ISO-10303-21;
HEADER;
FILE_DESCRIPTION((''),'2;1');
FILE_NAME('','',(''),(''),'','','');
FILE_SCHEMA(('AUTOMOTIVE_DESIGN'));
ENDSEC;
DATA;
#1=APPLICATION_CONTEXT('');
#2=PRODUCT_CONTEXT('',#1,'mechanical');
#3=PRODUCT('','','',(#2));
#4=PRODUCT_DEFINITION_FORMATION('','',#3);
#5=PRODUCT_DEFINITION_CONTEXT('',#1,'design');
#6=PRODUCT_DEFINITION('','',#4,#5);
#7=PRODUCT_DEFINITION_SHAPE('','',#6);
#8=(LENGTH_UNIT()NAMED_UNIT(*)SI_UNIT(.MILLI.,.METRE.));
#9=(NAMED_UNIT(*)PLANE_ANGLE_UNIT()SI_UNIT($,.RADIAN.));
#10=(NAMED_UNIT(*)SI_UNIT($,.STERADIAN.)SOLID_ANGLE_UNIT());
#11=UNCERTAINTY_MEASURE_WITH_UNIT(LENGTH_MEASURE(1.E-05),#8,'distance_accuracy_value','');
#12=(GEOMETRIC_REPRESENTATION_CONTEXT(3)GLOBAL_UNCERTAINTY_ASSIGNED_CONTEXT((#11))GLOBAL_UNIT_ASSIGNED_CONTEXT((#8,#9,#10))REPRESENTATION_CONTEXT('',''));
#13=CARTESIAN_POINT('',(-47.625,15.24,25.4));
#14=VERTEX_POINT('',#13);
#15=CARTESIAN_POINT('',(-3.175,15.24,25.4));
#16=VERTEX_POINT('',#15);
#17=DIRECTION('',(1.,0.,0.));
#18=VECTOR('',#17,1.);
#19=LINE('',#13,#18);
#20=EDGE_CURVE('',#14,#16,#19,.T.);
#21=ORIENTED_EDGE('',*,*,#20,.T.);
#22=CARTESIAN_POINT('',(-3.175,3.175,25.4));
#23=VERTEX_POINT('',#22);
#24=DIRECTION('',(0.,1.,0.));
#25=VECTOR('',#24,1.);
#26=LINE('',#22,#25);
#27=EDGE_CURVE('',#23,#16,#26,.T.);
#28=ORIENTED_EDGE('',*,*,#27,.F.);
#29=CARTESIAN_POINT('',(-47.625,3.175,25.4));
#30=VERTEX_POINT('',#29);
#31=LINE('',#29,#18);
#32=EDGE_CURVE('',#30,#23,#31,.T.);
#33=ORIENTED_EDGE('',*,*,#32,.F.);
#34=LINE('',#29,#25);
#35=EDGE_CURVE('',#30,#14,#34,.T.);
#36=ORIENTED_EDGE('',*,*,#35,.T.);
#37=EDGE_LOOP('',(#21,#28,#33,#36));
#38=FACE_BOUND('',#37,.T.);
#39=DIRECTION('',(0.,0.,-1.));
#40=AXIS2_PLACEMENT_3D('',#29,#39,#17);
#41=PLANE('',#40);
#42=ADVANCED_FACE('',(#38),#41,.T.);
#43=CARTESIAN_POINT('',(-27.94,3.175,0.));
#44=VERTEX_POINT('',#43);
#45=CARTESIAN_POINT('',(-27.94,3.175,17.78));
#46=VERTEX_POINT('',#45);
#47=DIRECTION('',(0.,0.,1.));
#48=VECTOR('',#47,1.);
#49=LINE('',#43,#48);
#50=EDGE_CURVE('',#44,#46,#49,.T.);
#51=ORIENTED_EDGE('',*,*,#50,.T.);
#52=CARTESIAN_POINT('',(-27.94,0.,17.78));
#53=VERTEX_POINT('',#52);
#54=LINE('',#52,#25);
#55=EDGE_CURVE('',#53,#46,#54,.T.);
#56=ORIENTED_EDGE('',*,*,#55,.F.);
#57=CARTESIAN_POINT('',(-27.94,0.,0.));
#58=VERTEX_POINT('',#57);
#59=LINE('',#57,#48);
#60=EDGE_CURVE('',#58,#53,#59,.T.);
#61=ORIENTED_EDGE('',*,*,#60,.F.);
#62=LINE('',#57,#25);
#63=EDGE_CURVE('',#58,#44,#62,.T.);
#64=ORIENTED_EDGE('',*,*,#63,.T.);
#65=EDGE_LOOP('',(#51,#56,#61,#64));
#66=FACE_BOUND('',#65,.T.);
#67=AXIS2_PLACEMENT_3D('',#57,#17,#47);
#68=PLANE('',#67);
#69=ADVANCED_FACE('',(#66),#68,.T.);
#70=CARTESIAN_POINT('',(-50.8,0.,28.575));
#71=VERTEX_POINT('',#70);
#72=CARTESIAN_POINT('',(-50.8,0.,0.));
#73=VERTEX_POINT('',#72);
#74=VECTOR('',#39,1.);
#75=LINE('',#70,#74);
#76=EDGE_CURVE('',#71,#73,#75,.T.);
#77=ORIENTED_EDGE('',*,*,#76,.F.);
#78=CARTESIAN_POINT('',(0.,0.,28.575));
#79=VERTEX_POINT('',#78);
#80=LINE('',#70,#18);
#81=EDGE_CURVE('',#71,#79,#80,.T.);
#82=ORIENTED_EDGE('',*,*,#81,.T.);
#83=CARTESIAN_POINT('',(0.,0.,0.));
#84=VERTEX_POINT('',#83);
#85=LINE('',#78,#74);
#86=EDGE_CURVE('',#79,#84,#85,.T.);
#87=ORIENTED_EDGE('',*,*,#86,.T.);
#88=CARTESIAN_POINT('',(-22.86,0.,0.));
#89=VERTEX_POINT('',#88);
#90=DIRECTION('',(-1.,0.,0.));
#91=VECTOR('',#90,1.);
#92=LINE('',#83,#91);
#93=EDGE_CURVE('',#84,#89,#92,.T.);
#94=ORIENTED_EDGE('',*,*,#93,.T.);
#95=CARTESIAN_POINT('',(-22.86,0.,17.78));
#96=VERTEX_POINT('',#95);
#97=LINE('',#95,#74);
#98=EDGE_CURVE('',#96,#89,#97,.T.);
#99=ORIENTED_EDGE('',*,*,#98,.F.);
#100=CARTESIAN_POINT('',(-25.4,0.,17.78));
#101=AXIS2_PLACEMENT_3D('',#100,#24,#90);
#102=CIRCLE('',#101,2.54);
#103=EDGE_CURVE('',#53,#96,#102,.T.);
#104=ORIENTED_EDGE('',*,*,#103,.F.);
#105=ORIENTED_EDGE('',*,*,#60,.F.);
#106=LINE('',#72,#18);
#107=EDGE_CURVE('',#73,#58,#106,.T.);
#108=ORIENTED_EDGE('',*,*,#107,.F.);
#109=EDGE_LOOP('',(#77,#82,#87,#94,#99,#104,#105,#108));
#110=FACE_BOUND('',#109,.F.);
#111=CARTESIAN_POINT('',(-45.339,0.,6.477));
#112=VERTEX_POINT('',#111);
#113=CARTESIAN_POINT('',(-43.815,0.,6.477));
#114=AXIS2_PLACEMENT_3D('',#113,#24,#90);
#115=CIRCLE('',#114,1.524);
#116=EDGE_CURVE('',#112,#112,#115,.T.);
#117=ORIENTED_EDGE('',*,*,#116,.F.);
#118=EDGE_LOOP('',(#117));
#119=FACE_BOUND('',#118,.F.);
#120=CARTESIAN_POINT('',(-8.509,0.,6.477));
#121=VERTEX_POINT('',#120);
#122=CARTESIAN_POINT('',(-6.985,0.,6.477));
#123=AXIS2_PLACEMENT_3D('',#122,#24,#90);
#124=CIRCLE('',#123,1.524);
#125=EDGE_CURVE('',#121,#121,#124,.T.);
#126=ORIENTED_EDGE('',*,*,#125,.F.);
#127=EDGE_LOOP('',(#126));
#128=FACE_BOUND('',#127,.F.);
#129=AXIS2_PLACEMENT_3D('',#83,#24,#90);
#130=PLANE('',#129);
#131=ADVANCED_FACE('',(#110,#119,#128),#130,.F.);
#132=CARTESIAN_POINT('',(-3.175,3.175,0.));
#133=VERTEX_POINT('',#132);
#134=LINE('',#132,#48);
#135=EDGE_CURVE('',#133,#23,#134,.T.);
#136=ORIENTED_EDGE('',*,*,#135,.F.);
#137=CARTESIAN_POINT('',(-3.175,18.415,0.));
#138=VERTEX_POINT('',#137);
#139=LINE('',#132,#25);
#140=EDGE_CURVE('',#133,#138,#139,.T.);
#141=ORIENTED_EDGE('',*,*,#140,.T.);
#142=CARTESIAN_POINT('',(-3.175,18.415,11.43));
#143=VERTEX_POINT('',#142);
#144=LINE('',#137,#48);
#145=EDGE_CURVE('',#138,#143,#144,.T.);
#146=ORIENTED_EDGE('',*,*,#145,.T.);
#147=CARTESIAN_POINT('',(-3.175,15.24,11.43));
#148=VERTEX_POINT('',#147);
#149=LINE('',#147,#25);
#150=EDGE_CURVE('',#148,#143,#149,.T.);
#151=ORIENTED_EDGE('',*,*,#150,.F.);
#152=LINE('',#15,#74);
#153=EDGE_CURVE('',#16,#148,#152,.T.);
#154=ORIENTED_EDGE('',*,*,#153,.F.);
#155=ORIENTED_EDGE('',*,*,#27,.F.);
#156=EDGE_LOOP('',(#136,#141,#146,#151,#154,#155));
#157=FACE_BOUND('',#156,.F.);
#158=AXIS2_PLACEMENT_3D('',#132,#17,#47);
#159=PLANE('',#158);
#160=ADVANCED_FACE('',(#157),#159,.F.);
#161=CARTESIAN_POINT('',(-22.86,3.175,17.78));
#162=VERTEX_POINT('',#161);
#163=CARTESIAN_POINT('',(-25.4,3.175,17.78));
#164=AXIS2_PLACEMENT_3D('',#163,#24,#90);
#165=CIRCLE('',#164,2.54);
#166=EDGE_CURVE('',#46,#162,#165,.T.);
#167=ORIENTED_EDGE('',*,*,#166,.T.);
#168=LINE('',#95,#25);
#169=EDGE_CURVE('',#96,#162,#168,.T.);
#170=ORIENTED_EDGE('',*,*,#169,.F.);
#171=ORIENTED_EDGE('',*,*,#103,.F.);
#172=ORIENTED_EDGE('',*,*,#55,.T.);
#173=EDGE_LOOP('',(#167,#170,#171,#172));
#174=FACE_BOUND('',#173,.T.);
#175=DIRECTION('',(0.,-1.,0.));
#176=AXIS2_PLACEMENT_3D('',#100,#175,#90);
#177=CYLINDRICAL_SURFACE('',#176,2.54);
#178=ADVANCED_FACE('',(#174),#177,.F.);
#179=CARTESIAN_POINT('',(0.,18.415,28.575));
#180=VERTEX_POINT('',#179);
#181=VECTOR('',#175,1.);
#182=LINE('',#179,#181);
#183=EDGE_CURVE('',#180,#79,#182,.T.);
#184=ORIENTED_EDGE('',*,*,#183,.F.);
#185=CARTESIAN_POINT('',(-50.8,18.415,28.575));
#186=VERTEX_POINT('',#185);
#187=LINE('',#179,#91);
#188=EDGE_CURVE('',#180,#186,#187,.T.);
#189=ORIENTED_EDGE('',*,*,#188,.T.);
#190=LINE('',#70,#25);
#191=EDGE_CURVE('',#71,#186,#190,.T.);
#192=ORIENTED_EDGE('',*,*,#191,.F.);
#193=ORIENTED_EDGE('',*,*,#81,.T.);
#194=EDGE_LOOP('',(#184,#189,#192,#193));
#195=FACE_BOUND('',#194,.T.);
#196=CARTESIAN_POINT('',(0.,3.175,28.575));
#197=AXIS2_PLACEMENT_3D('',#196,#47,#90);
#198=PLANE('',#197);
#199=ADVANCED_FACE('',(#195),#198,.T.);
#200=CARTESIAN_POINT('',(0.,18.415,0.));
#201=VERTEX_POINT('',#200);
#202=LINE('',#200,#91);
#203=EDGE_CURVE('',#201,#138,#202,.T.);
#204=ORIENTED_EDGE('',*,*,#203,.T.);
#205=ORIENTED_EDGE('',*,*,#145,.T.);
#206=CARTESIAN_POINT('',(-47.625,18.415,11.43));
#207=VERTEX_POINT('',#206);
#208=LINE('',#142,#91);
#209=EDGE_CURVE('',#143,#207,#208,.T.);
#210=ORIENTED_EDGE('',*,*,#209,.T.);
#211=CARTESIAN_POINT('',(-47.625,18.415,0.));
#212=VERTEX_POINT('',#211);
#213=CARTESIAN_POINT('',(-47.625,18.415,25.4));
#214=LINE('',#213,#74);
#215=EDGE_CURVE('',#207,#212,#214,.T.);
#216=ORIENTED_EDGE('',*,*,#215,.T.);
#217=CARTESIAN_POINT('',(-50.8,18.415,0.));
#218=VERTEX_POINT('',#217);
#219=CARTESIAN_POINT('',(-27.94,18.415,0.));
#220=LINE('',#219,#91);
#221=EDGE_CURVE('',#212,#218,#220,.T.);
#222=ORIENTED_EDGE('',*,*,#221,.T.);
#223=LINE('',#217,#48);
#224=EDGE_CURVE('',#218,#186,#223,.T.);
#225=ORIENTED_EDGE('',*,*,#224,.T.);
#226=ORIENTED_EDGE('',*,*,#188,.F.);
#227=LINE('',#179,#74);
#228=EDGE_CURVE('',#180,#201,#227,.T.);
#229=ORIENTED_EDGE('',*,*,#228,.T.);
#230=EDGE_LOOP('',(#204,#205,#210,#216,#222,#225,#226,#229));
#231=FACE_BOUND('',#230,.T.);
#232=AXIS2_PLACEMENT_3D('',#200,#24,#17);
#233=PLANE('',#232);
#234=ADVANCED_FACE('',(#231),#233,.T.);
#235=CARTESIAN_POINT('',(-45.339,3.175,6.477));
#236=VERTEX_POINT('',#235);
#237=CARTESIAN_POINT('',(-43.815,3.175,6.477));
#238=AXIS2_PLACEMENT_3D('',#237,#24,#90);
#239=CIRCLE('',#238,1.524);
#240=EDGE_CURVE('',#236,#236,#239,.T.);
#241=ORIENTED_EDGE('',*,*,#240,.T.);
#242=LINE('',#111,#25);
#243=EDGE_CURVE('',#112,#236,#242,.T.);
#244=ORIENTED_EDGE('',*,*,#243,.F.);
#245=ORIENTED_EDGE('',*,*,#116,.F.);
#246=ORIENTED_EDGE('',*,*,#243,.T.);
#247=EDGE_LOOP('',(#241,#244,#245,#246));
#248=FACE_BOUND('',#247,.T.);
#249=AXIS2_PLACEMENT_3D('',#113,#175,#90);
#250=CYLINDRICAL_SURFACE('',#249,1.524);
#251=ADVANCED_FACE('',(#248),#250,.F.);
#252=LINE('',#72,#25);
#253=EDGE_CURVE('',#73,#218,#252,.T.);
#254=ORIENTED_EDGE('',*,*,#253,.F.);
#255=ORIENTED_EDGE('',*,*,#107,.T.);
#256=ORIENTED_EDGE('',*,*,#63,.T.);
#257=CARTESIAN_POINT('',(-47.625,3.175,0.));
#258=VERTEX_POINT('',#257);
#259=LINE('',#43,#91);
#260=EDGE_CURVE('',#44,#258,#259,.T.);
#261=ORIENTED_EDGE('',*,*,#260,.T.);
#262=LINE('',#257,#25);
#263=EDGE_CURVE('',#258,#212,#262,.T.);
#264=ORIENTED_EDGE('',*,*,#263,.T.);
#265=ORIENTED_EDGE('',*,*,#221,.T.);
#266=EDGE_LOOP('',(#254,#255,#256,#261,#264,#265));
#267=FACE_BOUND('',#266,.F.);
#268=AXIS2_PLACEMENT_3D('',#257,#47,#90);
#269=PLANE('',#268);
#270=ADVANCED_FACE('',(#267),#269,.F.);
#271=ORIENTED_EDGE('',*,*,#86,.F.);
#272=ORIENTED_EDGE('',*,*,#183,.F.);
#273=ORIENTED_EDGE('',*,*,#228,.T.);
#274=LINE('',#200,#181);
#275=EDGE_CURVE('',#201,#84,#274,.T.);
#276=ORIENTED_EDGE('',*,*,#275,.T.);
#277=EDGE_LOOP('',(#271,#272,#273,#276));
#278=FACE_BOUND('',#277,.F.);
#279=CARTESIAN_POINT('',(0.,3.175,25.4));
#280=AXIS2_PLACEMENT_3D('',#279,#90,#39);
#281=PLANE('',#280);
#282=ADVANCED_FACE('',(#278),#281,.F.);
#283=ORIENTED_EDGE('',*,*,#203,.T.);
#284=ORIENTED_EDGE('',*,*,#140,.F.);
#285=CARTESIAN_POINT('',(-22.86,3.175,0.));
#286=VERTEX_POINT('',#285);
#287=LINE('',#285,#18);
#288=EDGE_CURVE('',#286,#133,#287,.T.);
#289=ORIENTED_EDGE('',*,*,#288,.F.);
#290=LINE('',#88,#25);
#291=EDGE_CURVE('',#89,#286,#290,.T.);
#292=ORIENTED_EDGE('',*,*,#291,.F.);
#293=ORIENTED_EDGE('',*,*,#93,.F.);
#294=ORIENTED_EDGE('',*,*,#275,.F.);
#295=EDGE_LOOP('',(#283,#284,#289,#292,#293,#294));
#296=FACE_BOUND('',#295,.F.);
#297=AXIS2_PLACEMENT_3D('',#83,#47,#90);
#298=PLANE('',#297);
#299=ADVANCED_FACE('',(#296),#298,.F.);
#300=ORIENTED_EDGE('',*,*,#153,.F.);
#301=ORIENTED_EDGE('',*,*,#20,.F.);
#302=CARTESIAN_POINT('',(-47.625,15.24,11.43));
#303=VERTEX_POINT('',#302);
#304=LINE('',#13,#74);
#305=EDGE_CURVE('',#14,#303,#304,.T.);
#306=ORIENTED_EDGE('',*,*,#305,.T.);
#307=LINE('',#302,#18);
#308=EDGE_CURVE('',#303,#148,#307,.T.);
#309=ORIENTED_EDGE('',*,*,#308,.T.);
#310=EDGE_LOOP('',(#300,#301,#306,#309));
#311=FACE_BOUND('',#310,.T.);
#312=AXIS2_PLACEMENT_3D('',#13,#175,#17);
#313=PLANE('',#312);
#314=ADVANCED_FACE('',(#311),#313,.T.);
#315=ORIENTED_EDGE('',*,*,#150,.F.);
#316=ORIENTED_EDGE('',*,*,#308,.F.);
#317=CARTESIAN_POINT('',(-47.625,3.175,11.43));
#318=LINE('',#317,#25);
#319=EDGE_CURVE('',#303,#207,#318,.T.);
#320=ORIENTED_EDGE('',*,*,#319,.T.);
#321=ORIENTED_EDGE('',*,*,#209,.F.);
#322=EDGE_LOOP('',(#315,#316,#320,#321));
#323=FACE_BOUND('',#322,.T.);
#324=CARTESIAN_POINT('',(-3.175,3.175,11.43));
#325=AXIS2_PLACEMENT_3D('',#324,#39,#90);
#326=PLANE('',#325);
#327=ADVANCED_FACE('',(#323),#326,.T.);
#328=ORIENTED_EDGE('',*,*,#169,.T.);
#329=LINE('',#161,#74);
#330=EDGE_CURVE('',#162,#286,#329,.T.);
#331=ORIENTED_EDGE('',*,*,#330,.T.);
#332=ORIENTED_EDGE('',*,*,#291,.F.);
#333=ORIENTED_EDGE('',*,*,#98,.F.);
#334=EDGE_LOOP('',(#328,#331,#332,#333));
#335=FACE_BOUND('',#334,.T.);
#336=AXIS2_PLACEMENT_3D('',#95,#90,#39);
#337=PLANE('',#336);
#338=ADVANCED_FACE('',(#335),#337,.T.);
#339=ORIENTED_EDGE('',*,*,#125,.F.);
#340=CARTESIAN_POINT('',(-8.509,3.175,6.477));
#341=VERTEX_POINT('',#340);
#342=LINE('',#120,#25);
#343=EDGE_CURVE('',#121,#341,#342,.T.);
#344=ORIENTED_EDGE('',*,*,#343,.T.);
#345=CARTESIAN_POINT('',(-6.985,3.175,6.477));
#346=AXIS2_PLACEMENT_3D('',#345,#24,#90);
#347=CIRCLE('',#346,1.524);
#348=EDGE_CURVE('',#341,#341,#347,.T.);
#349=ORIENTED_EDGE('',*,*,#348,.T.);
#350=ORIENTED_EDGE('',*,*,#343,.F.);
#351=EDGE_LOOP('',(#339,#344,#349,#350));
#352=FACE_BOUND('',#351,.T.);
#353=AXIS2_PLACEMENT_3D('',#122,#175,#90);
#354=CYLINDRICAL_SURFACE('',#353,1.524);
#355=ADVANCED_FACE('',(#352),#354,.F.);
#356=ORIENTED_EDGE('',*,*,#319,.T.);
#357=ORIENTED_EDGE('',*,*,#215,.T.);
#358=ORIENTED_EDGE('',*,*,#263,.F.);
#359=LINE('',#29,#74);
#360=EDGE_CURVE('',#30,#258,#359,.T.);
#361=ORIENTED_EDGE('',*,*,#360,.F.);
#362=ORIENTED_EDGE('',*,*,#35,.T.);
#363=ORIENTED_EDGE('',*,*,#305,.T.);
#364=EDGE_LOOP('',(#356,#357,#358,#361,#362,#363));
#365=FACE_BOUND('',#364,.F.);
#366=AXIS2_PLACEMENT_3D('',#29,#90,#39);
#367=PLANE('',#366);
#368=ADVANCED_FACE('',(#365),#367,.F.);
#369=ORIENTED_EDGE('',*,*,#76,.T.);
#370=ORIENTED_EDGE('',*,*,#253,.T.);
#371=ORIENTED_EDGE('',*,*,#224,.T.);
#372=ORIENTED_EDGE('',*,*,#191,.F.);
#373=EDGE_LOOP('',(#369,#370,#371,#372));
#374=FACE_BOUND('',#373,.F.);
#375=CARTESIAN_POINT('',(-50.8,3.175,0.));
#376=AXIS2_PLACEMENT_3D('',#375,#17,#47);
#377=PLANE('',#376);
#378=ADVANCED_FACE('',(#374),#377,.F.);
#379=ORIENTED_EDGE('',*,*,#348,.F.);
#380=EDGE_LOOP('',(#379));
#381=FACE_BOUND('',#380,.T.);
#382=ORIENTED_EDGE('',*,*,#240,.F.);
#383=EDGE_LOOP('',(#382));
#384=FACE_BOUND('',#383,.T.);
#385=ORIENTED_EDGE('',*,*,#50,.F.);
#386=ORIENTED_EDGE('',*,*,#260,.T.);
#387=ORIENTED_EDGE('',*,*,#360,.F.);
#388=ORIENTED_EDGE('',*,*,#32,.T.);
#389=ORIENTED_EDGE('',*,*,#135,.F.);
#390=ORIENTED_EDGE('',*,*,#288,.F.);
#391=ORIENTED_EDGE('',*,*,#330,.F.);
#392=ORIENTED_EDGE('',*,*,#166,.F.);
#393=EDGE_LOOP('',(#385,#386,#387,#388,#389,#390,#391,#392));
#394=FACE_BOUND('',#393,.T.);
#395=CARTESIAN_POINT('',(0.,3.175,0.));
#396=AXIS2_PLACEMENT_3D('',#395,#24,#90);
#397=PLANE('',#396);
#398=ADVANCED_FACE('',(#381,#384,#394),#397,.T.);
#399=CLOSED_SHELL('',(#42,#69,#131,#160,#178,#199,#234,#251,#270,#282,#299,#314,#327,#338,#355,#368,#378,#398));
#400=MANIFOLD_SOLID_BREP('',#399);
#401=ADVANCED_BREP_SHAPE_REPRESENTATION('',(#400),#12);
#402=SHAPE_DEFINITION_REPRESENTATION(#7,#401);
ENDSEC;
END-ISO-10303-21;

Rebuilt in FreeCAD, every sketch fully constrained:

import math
import FreeCAD as App
import Part
import Sketcher
Q = App.Units.Quantity

doc = App.newDocument("Part")
body = doc.addObject("PartDesign::Body", "Body")

sketch1 = body.newObject("Sketcher::SketchObject", "Sketch")
sketch1.AttachmentSupport = (doc.getObject("XZ_Plane"), [""])
sketch1.MapMode = "FlatFace"
sketch1.addGeometry([
    Part.LineSegment(App.Vector(0, 0, 0), App.Vector(-22.9, 0, 0)),
    Part.LineSegment(App.Vector(-22.9, 0, 0), App.Vector(-22.9, 17.8, 0)),
    Part.ArcOfCircle(Part.Circle(App.Vector(-25.4, 17.8, 0), App.Vector(0, 0, 1), 2.5), math.radians(0), math.radians(180)),
    Part.LineSegment(App.Vector(-27.9, 17.8, 0), App.Vector(-27.9, 0, 0)),
    Part.LineSegment(App.Vector(-27.9, 0, 0), App.Vector(-50.8, 0, 0)),
    Part.LineSegment(App.Vector(-50.8, 0, 0), App.Vector(-50.8, 28.6, 0)),
    Part.LineSegment(App.Vector(-50.8, 28.6, 0), App.Vector(0, 28.6, 0)),
    Part.LineSegment(App.Vector(0, 28.6, 0), App.Vector(0, 0, 0)),
    Part.Circle(App.Vector(-7, 6.5, 0), App.Vector(0, 0, 1), 1.5),
    Part.Circle(App.Vector(-43.8, 6.5, 0), App.Vector(0, 0, 1), 1.5),
], False)
sketch1.addConstraint([
    Sketcher.Constraint("Coincident", 0, 2, 1, 1),
    Sketcher.Constraint("Tangent", 1, 2, 2, 1),
    Sketcher.Constraint("Tangent", 2, 2, 3, 1),
    Sketcher.Constraint("Coincident", 3, 2, 4, 1),
    Sketcher.Constraint("Coincident", 4, 2, 5, 1),
    Sketcher.Constraint("Coincident", 5, 2, 6, 1),
    Sketcher.Constraint("Coincident", 6, 2, 7, 1),
    Sketcher.Constraint("Coincident", 7, 2, 0, 1),
    Sketcher.Constraint("Horizontal", 0),
    Sketcher.Constraint("Vertical", 1),
    Sketcher.Constraint("Vertical", 3),
    Sketcher.Constraint("Horizontal", 4),
    Sketcher.Constraint("Vertical", 5),
    Sketcher.Constraint("Horizontal", 6),
    Sketcher.Constraint("Vertical", 7),
    Sketcher.Constraint("Coincident", 7, 2, -1, 1),
    Sketcher.Constraint("Equal", 8, 9),
    Sketcher.Constraint("PointOnObject", 3, 2, -1),
    Sketcher.Constraint("Horizontal", 8, 3, 9, 3),
    Sketcher.Constraint("Equal", 0, 4),
    Sketcher.Constraint("Radius", 2, Q("0.1 in")),
    Sketcher.Constraint("Diameter", 8, Q("0.12 in")),
    Sketcher.Constraint("DistanceX", 6, 1, 6, 2, Q("2 in")),
    Sketcher.Constraint("DistanceY", 5, 1, 5, 2, Q("1.125 in")),
    Sketcher.Constraint("DistanceY", 1, 1, 1, 2, Q("0.7 in")),
    Sketcher.Constraint("DistanceX", 9, 3, 8, 3, Q("1.45 in")),
    Sketcher.Constraint("DistanceY", 9, 3, 5, 2, Q("0.87 in")),
    Sketcher.Constraint("DistanceX", 8, 3, -1, 1, Q("0.275 in")),
])
pad1 = body.newObject("PartDesign::Pad", "Pad")
pad1.Profile = sketch1
pad1.Length = Q("0.125 in")
pad1.Reversed = True

sketch2 = body.newObject("Sketcher::SketchObject", "Sketch001")
sketch2.AttachmentSupport = (doc.getObject("XZ_Plane"), [""])
sketch2.MapMode = "FlatFace"
sketch2.AttachmentOffset = App.Placement(App.Vector(0, 0, -0.125 * 25.4), App.Rotation())
sketch2.addGeometry([
    Part.LineSegment(App.Vector(-47.6, 25.4, 0), App.Vector(-47.6, 0, 0)),
    Part.LineSegment(App.Vector(-47.6, 0, 0), App.Vector(-50.8, 0, 0)),
    Part.LineSegment(App.Vector(-50.8, 0, 0), App.Vector(-50.8, 28.6, 0)),
    Part.LineSegment(App.Vector(-50.8, 28.6, 0), App.Vector(0, 28.6, 0)),
    Part.LineSegment(App.Vector(0, 28.6, 0), App.Vector(0, 0, 0)),
    Part.LineSegment(App.Vector(0, 0, 0), App.Vector(-3.2, 0, 0)),
    Part.LineSegment(App.Vector(-3.2, 0, 0), App.Vector(-3.2, 25.4, 0)),
    Part.LineSegment(App.Vector(-3.2, 25.4, 0), App.Vector(-47.6, 25.4, 0)),
], False)
sketch2.addConstraint([
    Sketcher.Constraint("Coincident", 0, 2, 1, 1),
    Sketcher.Constraint("Coincident", 1, 2, 2, 1),
    Sketcher.Constraint("Coincident", 2, 2, 3, 1),
    Sketcher.Constraint("Coincident", 3, 2, 4, 1),
    Sketcher.Constraint("Coincident", 4, 2, 5, 1),
    Sketcher.Constraint("Coincident", 5, 2, 6, 1),
    Sketcher.Constraint("Coincident", 6, 2, 7, 1),
    Sketcher.Constraint("Coincident", 7, 2, 0, 1),
    Sketcher.Constraint("Vertical", 0),
    Sketcher.Constraint("Horizontal", 1),
    Sketcher.Constraint("Vertical", 2),
    Sketcher.Constraint("Horizontal", 3),
    Sketcher.Constraint("Vertical", 4),
    Sketcher.Constraint("Horizontal", 5),
    Sketcher.Constraint("Vertical", 6),
    Sketcher.Constraint("Horizontal", 7),
    Sketcher.Constraint("Coincident", 4, 2, -1, 1),
    Sketcher.Constraint("PointOnObject", 0, 2, -1),
    Sketcher.Constraint("Equal", 1, 5),
    Sketcher.Constraint("DistanceX", 1, 2, 1, 1, Q("0.125 in")),
    Sketcher.Constraint("DistanceX", 3, 1, 3, 2, Q("2 in")),
    Sketcher.Constraint("DistanceY", 0, 2, 0, 1, Q("1 in")),
    Sketcher.Constraint("DistanceY", 6, 2, 3, 2, Q("0.125 in")),
])
pad2 = body.newObject("PartDesign::Pad", "Pad001")
pad2.Profile = sketch2
pad2.Length = Q("0.6 in")
pad2.Reversed = True

sketch3 = body.newObject("Sketcher::SketchObject", "Sketch002")
sketch3.AttachmentSupport = (doc.getObject("XY_Plane"), [""])
sketch3.MapMode = "FlatFace"
sketch3.AttachmentOffset = App.Placement(App.Vector(0, 0, 1 * 25.4), App.Rotation())
sketch3.addGeometry([
    Part.LineSegment(App.Vector(-3.2, 15.2, 0), App.Vector(-47.6, 15.2, 0)),
    Part.LineSegment(App.Vector(-47.6, 15.2, 0), App.Vector(-47.6, 18.4, 0)),
    Part.LineSegment(App.Vector(-47.6, 18.4, 0), App.Vector(-3.2, 18.4, 0)),
    Part.LineSegment(App.Vector(-3.2, 18.4, 0), App.Vector(-3.2, 15.2, 0)),
], False)
sketch3.addConstraint([
    Sketcher.Constraint("Coincident", 0, 2, 1, 1),
    Sketcher.Constraint("Coincident", 1, 2, 2, 1),
    Sketcher.Constraint("Coincident", 2, 2, 3, 1),
    Sketcher.Constraint("Coincident", 3, 2, 0, 1),
    Sketcher.Constraint("Horizontal", 0),
    Sketcher.Constraint("Vertical", 1),
    Sketcher.Constraint("Horizontal", 2),
    Sketcher.Constraint("Vertical", 3),
    Sketcher.Constraint("DistanceY", 1, 1, 1, 2, Q("0.125 in")),
    Sketcher.Constraint("DistanceX", 2, 2, -1, 1, Q("0.125 in")),
    Sketcher.Constraint("DistanceX", 0, 2, 0, 1, Q("1.75 in")),
    Sketcher.Constraint("DistanceY", -1, 1, 0, 2, Q("0.6 in")),
])
pad3 = body.newObject("PartDesign::Pad", "Pad002")
pad3.Profile = sketch3
pad3.Length = Q("0.55 in")
pad3.Reversed = True

doc.recompute()
